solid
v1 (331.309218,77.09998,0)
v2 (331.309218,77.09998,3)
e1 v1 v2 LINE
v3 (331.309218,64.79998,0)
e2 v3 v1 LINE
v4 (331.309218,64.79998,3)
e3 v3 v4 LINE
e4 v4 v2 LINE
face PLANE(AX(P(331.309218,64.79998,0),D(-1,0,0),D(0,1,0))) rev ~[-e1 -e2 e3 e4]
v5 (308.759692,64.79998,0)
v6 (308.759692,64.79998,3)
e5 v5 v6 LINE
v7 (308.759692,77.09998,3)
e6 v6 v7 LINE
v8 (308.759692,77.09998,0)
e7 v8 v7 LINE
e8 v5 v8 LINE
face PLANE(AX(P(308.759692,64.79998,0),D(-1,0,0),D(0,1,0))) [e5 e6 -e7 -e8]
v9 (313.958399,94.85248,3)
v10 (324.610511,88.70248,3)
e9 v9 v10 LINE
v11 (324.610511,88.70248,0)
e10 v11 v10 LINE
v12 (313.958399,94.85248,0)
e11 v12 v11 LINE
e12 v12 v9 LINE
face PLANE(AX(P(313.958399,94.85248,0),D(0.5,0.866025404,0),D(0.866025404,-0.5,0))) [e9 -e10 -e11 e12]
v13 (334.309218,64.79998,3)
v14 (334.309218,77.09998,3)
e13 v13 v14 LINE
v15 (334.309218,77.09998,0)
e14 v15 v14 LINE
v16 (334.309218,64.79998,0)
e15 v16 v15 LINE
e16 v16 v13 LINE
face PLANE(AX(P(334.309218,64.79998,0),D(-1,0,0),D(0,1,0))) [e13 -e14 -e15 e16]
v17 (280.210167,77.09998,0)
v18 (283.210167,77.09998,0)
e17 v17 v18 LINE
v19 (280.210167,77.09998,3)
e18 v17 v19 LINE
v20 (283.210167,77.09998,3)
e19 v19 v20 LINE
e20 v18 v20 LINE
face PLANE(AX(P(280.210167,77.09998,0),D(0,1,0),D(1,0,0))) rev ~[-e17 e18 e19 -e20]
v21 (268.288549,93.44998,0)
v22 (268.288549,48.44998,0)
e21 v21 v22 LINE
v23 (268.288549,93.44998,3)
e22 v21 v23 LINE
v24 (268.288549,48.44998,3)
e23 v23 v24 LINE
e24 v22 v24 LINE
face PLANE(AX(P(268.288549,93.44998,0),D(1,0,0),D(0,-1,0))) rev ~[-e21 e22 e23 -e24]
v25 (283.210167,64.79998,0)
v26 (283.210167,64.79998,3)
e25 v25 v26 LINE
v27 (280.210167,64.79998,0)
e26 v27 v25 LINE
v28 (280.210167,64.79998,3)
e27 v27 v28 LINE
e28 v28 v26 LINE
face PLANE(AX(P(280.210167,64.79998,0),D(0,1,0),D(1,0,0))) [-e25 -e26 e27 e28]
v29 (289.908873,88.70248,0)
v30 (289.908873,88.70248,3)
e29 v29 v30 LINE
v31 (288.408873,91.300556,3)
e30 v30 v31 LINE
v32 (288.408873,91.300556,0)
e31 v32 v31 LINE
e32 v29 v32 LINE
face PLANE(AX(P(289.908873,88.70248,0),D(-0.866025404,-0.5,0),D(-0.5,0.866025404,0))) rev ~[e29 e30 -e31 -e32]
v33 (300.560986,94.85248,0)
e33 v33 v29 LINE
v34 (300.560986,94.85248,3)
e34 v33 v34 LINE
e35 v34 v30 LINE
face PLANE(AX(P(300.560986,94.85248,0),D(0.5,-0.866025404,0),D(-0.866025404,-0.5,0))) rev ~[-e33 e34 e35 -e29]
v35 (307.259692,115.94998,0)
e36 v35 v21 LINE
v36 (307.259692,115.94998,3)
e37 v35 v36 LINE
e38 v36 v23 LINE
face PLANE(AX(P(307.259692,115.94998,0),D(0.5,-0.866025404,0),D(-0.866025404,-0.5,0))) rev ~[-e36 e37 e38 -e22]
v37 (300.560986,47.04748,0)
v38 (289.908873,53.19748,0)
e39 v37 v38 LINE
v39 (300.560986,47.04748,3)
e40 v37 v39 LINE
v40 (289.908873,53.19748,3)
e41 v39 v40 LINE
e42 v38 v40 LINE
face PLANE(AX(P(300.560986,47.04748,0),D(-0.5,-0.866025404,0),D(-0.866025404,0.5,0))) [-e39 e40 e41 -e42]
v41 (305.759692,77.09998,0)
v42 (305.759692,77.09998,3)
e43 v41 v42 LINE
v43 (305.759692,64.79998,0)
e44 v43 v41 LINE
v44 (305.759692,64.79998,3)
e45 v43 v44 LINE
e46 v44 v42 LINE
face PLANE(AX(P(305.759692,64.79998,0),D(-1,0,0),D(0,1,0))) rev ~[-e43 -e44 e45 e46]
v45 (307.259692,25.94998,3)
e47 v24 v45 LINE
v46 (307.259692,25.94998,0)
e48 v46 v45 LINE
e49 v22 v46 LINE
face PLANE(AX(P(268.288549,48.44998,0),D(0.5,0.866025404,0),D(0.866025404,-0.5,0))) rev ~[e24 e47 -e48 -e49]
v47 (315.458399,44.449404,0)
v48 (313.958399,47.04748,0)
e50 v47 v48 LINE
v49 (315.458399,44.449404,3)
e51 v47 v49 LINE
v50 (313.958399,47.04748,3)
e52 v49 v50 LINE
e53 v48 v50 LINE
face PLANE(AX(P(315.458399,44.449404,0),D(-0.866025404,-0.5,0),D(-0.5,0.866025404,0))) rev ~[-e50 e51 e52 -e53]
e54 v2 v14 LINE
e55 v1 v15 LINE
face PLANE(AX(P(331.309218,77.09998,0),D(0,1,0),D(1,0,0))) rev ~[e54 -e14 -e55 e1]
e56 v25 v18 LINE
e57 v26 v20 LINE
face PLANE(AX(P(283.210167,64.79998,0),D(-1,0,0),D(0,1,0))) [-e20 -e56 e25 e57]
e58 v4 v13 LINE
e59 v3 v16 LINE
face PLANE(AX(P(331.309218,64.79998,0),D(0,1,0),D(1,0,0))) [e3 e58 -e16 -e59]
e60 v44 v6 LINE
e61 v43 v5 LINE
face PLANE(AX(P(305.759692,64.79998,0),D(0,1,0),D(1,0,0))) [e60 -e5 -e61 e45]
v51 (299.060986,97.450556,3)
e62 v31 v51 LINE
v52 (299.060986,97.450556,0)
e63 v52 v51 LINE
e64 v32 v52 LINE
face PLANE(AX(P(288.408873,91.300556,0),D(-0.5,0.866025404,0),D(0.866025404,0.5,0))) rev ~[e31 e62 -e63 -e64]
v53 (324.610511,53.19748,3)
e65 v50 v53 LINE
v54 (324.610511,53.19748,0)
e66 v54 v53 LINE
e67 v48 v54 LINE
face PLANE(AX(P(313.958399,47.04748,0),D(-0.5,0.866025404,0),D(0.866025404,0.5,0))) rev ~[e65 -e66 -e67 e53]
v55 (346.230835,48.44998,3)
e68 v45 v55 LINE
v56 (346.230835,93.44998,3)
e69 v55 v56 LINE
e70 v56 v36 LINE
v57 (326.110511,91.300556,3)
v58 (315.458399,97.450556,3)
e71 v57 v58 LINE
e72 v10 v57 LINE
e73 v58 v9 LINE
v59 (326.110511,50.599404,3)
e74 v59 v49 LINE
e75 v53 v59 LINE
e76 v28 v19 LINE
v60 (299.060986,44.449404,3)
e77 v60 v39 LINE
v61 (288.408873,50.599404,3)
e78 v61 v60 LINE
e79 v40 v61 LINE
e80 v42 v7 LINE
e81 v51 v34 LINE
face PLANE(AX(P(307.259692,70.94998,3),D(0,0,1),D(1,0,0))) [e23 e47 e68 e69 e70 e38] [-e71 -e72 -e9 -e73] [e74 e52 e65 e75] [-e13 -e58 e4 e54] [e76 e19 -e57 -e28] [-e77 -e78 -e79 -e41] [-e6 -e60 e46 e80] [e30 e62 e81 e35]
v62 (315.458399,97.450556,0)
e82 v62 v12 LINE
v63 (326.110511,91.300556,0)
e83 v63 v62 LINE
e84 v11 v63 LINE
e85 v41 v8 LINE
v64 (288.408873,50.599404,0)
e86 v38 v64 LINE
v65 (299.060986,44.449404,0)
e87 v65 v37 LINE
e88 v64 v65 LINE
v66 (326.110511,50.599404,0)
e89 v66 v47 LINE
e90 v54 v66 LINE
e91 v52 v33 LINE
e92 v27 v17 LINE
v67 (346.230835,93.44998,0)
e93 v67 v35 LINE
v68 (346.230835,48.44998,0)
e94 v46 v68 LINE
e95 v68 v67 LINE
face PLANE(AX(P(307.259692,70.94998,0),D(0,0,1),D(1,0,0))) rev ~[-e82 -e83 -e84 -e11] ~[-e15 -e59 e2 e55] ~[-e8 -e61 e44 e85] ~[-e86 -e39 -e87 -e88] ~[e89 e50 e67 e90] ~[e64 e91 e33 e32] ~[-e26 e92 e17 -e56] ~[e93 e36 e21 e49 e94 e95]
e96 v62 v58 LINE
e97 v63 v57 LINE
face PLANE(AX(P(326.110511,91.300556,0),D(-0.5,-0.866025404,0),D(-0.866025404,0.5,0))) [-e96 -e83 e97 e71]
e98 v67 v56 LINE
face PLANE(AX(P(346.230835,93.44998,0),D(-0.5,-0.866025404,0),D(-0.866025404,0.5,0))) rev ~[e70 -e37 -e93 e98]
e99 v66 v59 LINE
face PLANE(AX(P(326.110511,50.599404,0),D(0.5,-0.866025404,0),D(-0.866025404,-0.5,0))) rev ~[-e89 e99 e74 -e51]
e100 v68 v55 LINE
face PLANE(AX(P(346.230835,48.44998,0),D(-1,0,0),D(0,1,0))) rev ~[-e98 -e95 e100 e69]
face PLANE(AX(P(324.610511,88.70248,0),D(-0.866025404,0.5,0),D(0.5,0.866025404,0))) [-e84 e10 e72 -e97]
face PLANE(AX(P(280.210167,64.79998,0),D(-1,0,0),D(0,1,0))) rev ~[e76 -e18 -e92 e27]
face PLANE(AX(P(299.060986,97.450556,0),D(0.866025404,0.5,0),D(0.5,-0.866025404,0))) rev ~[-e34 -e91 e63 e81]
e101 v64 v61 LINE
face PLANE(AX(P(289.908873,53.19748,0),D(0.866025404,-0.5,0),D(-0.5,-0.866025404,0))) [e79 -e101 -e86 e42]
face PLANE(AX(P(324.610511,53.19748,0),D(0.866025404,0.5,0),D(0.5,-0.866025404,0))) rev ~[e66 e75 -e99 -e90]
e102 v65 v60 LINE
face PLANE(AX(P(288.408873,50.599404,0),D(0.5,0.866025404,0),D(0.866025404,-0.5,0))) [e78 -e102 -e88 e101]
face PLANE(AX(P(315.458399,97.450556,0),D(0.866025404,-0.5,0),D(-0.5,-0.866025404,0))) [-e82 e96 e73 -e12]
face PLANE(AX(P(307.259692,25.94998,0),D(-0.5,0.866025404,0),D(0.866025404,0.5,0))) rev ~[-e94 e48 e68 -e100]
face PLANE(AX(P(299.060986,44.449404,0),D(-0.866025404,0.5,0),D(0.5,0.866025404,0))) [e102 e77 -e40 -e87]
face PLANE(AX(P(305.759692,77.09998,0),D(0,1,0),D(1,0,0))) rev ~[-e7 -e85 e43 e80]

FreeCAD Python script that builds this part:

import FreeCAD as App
import Part
import Sketcher
Q = App.Units.Quantity


def add_polygon(sketch, points):
    """Adds a closed chain of lines whose ends are joined by coincident constraints."""
    first, n = sketch.GeometryCount, len(points)
    for a, b in zip(points, points[1:] + points[:1]):
        sketch.addGeometry(Part.LineSegment(App.Vector(*a, 0), App.Vector(*b, 0)), False)
    for i in range(n):
        sketch.addConstraint(Sketcher.Constraint("Coincident", first + i, 2, first + (i + 1) % n, 1))

doc = App.newDocument("Part")
params = doc.addObject("Spreadsheet::Sheet", "Params")
for row, (alias, value) in enumerate([
    ("sketch1_width", "3 mm"),
    ("sketch1_height", "45 mm"),
    ("sketch1_length", "45 mm"),
    ("sketch1_length2", "3 mm"),
    ("sketch1_height2", "12.3 mm"),
    ("pad1_length", "3 mm"),
], start=1):
    params.set(f"A{row}", alias)
    params.set(f"B{row}", "=" + value)
    params.setAlias(f"B{row}", alias)

body = doc.addObject("PartDesign::Body", "Body")

# Sketch on XY plane
sketch1 = body.newObject("Sketcher::SketchObject", "Sketch")
sketch1.AttachmentSupport = (doc.getObject("XY_Plane"), [""])
sketch1.MapMode = "FlatFace"
add_polygon(sketch1, [(307.3, 25.9), (346.2, 48.4), (346.2, 93.4), (307.3, 115.9), (268.3, 93.4), (268.3, 48.4)])  # lines 0-5
add_polygon(sketch1, [(289.9, 53.2), (300.6, 47), (299.1, 44.4), (288.4, 50.6)])  # lines 6-9
add_polygon(sketch1, [(314, 47), (324.6, 53.2), (326.1, 50.6), (315.5, 44.4)])  # lines 10-13
add_polygon(sketch1, [(283.2, 64.8), (280.2, 64.8), (280.2, 77.1), (283.2, 77.1)])  # lines 14-17
add_polygon(sketch1, [(300.6, 94.9), (289.9, 88.7), (288.4, 91.3), (299.1, 97.5)])  # lines 18-21
add_polygon(sketch1, [(308.8, 64.8), (305.8, 64.8), (305.8, 77.1), (308.8, 77.1)])  # lines 22-25
add_polygon(sketch1, [(334.3, 64.8), (331.3, 64.8), (331.3, 77.1), (334.3, 77.1)])  # lines 26-29
add_polygon(sketch1, [(324.6, 88.7), (314, 94.9), (315.5, 97.5), (326.1, 91.3)])  # lines 30-33
sketch1.addConstraint([
    Sketcher.Constraint("Vertical", 1),
    Sketcher.Constraint("Vertical", 4),
    Sketcher.Constraint("Horizontal", 14),
    Sketcher.Constraint("Vertical", 15),
    Sketcher.Constraint("Horizontal", 16),
    Sketcher.Constraint("Vertical", 17),
    Sketcher.Constraint("Horizontal", 22),
    Sketcher.Constraint("Vertical", 23),
    Sketcher.Constraint("Horizontal", 24),
    Sketcher.Constraint("Vertical", 25),
    Sketcher.Constraint("Horizontal", 26),
    Sketcher.Constraint("Vertical", 27),
    Sketcher.Constraint("Horizontal", 28),
    Sketcher.Constraint("Vertical", 29),
    Sketcher.Constraint("Parallel", 0, 3),
    Sketcher.Constraint("Parallel", 2, 5),
    Sketcher.Constraint("Parallel", 5, 6),
    Sketcher.Constraint("Perpendicular", 6, 7),
    Sketcher.Constraint("Perpendicular", 7, 8),
    Sketcher.Constraint("Perpendicular", 8, 9),
    Sketcher.Constraint("Parallel", 3, 10),
    Sketcher.Constraint("Perpendicular", 10, 11),
    Sketcher.Constraint("Perpendicular", 11, 12),
    Sketcher.Constraint("Perpendicular", 12, 13),
    Sketcher.Constraint("Perpendicular", 13, 18),
    Sketcher.Constraint("Perpendicular", 18, 19),
    Sketcher.Constraint("Perpendicular", 19, 20),
    Sketcher.Constraint("Perpendicular", 20, 21),
    Sketcher.Constraint("Perpendicular", 9, 30),
    Sketcher.Constraint("Perpendicular", 30, 31),
    Sketcher.Constraint("Perpendicular", 31, 32),
    Sketcher.Constraint("Perpendicular", 32, 33),
    Sketcher.Constraint("Horizontal", 1, 2, 3, 2),
    Sketcher.Constraint("Horizontal", 0, 2, 4, 2),
    Sketcher.Constraint("Horizontal", 9, 2, 10, 2),
    Sketcher.Constraint("Horizontal", 8, 2, 11, 2),
    Sketcher.Constraint("Horizontal", 7, 2, 12, 2),
    Sketcher.Constraint("Horizontal", 17, 2, 22, 2),
    Sketcher.Constraint("Horizontal", 16, 2, 23, 2),
    Sketcher.Constraint("Horizontal", 25, 2, 26, 2),
    Sketcher.Constraint("Horizontal", 24, 2, 27, 2),
    Sketcher.Constraint("Horizontal", 21, 2, 30, 2),
    Sketcher.Constraint("Horizontal", 20, 2, 31, 2),
    Sketcher.Constraint("Horizontal", 19, 2, 32, 2),
    Sketcher.Constraint("Vertical", 2, 2, 5, 2),
    Sketcher.Constraint("Vertical", 9, 2, 18, 2),
    Sketcher.Constraint("Vertical", 8, 2, 19, 2),
    Sketcher.Constraint("Vertical", 7, 2, 20, 2),
    Sketcher.Constraint("Vertical", 13, 2, 30, 2),
    Sketcher.Constraint("Equal", 16, 22),
    Sketcher.Constraint("Equal", 24, 26),
    Sketcher.Constraint("DistanceX", 14, 2, 14, 1, Q("3 mm")),
    Sketcher.Constraint("DistanceY", 1, 1, 1, 2, Q("45 mm")),
    Sketcher.Constraint("Angle", 0, Q("30 deg")),
    Sketcher.Constraint("Distance", 0, Q("45 mm")),
    Sketcher.Constraint("Distance", 7, Q("3 mm")),
    Sketcher.Constraint("DistanceY", 15, 1, 15, 2, Q("12.3 mm")),
    Sketcher.Constraint("Distance", 6, Q("12.3 mm")),
    Sketcher.Constraint("DistanceY", 4, 2, 14, 2, Q("16.35 mm")),
    Sketcher.Constraint("DistanceX", -1, 1, 12, 2, Q("315.458399 mm")),
    Sketcher.Constraint("DistanceY", 5, 2, 6, 2, Q("21.0975 mm")),
    Sketcher.Constraint("DistanceY", 16, 2, 18, 2, Q("11.6025 mm")),
    Sketcher.Constraint("DistanceY", -1, 1, 0, 2, Q("48.44998 mm")),
    Sketcher.Constraint("DistanceX", -1, 1, 3, 2, Q("268.288549 mm")),
    Sketcher.Constraint("DistanceX", 6, 2, 0, 2, Q("45.66985 mm")),
    Sketcher.Constraint("DistanceX", 14, 2, 6, 2, Q("20.350819 mm")),
    Sketcher.Constraint("DistanceX", 9, 2, 22, 2, Q("15.850819 mm")),
    Sketcher.Constraint("DistanceX", 13, 2, 26, 2, Q("17.350819 mm")),
])
sketch1.setExpression("Constraints[85]", "Params.sketch1_width")
sketch1.setExpression("Constraints[86]", "Params.sketch1_height")
sketch1.setExpression("Constraints[88]", "Params.sketch1_length")
sketch1.setExpression("Constraints[89]", "Params.sketch1_length2")
sketch1.setExpression("Constraints[90]", "Params.sketch1_height2")
pad1 = body.newObject("PartDesign::Pad", "Pad")
pad1.Profile = sketch1
pad1.setExpression("Length", "Params.pad1_length")

doc.recompute()
